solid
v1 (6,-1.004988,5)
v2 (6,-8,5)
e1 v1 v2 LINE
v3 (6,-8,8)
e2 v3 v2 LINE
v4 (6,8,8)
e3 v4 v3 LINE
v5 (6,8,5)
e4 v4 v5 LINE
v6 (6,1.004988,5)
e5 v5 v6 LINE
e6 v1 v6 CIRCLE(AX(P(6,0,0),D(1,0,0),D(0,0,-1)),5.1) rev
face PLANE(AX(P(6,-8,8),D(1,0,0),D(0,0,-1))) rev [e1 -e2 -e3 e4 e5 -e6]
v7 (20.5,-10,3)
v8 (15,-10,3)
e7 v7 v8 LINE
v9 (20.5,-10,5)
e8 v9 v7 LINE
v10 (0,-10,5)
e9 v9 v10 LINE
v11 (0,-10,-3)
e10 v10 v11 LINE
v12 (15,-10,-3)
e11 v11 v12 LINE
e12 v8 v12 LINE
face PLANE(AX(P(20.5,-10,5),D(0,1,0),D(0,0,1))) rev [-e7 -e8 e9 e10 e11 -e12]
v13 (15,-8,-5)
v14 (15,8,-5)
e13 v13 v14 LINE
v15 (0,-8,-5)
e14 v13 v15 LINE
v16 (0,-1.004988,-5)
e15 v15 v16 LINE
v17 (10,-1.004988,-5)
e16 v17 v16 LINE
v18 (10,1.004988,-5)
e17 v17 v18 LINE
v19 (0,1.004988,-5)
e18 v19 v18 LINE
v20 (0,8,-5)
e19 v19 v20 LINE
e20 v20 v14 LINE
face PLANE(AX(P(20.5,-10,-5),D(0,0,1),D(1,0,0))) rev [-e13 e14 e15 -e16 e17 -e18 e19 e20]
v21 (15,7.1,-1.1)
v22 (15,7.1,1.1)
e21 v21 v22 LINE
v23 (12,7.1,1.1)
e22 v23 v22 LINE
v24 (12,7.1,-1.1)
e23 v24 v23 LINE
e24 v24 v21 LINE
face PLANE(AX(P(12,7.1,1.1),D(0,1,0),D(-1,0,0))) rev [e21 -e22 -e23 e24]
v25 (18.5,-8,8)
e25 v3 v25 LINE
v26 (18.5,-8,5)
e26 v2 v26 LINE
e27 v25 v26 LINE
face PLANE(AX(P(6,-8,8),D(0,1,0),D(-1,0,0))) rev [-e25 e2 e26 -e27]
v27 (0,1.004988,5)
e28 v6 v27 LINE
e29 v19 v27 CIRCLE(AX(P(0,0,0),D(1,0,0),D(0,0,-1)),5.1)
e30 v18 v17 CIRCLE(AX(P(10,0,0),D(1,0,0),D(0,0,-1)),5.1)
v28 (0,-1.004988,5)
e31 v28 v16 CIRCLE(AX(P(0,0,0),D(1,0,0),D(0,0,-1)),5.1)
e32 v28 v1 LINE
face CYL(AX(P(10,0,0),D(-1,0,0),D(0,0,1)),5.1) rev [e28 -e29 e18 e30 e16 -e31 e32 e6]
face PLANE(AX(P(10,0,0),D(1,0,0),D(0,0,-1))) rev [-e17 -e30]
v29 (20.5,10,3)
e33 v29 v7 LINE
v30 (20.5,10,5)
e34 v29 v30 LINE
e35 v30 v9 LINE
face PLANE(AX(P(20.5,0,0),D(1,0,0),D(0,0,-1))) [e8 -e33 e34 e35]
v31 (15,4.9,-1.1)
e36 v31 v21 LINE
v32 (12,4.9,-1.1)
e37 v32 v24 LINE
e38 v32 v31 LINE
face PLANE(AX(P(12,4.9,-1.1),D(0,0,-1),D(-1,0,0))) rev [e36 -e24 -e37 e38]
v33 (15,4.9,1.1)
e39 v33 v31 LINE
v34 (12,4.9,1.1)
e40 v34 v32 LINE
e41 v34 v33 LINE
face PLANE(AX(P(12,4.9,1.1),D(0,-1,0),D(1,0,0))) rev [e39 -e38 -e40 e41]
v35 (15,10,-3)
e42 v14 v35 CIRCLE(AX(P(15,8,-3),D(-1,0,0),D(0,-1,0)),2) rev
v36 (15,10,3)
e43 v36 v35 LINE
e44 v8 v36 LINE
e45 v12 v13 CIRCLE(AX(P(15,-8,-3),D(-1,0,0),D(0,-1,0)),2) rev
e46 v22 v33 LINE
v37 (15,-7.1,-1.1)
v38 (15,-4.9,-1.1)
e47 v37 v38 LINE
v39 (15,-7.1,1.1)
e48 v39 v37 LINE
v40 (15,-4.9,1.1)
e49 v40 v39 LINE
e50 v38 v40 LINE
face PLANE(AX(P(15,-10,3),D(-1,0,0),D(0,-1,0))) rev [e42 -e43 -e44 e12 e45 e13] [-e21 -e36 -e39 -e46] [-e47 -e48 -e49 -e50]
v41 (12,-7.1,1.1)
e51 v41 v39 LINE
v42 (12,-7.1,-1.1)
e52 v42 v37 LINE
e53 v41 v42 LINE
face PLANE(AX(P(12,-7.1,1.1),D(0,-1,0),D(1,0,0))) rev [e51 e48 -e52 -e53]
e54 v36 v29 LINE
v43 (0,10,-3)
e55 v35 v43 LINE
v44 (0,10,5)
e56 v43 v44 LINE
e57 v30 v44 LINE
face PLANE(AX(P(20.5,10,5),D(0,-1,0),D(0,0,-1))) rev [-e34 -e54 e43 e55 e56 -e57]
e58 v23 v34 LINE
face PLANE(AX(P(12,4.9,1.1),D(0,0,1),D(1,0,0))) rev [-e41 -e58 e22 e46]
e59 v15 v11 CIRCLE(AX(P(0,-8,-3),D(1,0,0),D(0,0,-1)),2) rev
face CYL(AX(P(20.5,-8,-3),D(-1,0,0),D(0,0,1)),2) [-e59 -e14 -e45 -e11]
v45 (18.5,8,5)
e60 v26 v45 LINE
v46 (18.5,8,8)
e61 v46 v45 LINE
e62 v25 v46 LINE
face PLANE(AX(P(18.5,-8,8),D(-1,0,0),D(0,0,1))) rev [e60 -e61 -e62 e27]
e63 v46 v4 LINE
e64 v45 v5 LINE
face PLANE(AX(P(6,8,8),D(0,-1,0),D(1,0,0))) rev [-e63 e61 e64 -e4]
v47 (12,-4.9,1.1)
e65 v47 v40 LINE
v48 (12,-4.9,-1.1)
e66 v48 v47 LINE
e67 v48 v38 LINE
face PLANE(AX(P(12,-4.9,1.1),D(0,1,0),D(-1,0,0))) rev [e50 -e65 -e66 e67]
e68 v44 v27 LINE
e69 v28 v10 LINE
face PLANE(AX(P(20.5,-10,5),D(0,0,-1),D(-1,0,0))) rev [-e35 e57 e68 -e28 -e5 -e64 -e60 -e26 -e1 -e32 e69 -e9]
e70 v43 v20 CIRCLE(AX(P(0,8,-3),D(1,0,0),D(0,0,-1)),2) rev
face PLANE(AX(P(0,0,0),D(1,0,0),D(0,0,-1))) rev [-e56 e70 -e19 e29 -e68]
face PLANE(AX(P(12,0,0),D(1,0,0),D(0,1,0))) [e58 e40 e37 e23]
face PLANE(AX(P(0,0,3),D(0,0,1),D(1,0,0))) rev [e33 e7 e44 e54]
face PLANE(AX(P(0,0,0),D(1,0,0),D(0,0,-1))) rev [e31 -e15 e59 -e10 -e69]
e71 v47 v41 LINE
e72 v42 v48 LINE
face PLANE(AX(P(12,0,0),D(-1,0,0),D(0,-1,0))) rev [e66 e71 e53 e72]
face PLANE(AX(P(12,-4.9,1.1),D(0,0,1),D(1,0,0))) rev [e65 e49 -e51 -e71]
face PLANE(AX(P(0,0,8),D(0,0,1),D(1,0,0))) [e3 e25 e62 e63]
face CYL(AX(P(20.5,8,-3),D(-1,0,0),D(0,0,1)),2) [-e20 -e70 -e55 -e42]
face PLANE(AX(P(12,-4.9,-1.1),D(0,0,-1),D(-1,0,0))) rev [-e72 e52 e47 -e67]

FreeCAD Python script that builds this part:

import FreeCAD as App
import Part
import Sketcher
from FreeCAD import Vector


def edges_at(feature, points):
    """Names of the edges that pass closest to the given points."""
    edges = feature.Shape.Edges
    near = lambda p: min(range(len(edges)), key=lambda i: edges[i].distToShape(Part.Vertex(*p))[0])
    return sorted({f"Edge{near(p) + 1}" for p in points})

doc = App.newDocument("Part")
params = doc.addObject("Spreadsheet::Sheet", "Params")
for row, (alias, value) in enumerate([
    ("sketch1_width", "20 mm"),
    ("sketch1_height", "10 mm"),
    ("pad1_length", "20.5 mm"),
    ("sketch2_height", "16 mm"),
    ("sketch2_width", "12.5 mm"),
    ("pad2_length", "8 mm"),
    ("sketch3_diameter", "10.2 mm"),
    ("pocket1_length", "10 mm"),
    ("sketch4_height", "20 mm"),
    ("sketch4_width", "5.5 mm"),
    ("pocket2_length", "8 mm"),
    ("sketch5_width", "2.2 mm"),
    ("pocket3_length", "3 mm"),
    ("fillet_radius", "2 mm"),
], start=1):
    params.set(f"A{row}", alias)
    params.set(f"B{row}", "=" + value)
    params.setAlias(f"B{row}", alias)

body = doc.addObject("PartDesign::Body", "Body")

sketch1 = body.newObject("Sketcher::SketchObject", "Sketch")
sketch1.AttachmentSupport = (doc.getObject("YZ_Plane"), [""])
sketch1.MapMode = "FlatFace"
sketch1.addGeometry([
    Part.LineSegment(Vector(-10, 5, 0), Vector(-10, -5, 0)),
    Part.LineSegment(Vector(-10, -5, 0), Vector(10, -5, 0)),
    Part.LineSegment(Vector(10, -5, 0), Vector(10, 5, 0)),
    Part.LineSegment(Vector(10, 5, 0), Vector(-10, 5, 0)),
], False)
sketch1.addConstraint([
    Sketcher.Constraint("Coincident", 0, 2, 1, 1),
    Sketcher.Constraint("Coincident", 1, 2, 2, 1),
    Sketcher.Constraint("Coincident", 2, 2, 3, 1),
    Sketcher.Constraint("Coincident", 3, 2, 0, 1),
    Sketcher.Constraint("Vertical", 0),
    Sketcher.Constraint("Horizontal", 1),
    Sketcher.Constraint("Vertical", 2),
    Sketcher.Constraint("Horizontal", 3),
    Sketcher.Constraint("Symmetric", 0, 2, 2, 2, -1, 1),
    Sketcher.Constraint("DistanceX", 1, 1, 1, 2, 20.0),
    Sketcher.Constraint("DistanceY", 0, 2, 0, 1, 10.0),
])
sketch1.setExpression("Constraints[9]", "Params.sketch1_width")
sketch1.setExpression("Constraints[10]", "Params.sketch1_height")
pad1 = body.newObject("PartDesign::Pad", "Pad")
pad1.Profile = sketch1
pad1.setExpression("Length", "Params.pad1_length")

sketch2 = body.newObject("Sketcher::SketchObject", "Sketch001")
sketch2.AttachmentSupport = (doc.getObject("XY_Plane"), [""])
sketch2.MapMode = "FlatFace"
sketch2.addGeometry([
    Part.LineSegment(Vector(6, -8, 0), Vector(18.5, -8, 0)),
    Part.LineSegment(Vector(18.5, -8, 0), Vector(18.5, 8, 0)),
    Part.LineSegment(Vector(18.5, 8, 0), Vector(6, 8, 0)),
    Part.LineSegment(Vector(6, 8, 0), Vector(6, -8, 0)),
], False)
sketch2.addConstraint([
    Sketcher.Constraint("Coincident", 0, 2, 1, 1),
    Sketcher.Constraint("Coincident", 1, 2, 2, 1),
    Sketcher.Constraint("Coincident", 2, 2, 3, 1),
    Sketcher.Constraint("Coincident", 3, 2, 0, 1),
    Sketcher.Constraint("Horizontal", 0),
    Sketcher.Constraint("Vertical", 1),
    Sketcher.Constraint("Horizontal", 2),
    Sketcher.Constraint("Vertical", 3),
    Sketcher.Constraint("DistanceY", 1, 1, 1, 2, 16.0),
    Sketcher.Constraint("DistanceX", 0, 1, 0, 2, 12.5),
    Sketcher.Constraint("DistanceY", 0, 2, -1, 1, 8.0),
    Sketcher.Constraint("DistanceX", -1, 1, 2, 2, 6.0),
])
sketch2.setExpression("Constraints[8]", "Params.sketch2_height")
sketch2.setExpression("Constraints[9]", "Params.sketch2_width")
pad2 = body.newObject("PartDesign::Pad", "Pad001")
pad2.Profile = sketch2
pad2.setExpression("Length", "Params.pad2_length")

sketch3 = body.newObject("Sketcher::SketchObject", "Sketch002")
sketch3.AttachmentSupport = (doc.getObject("YZ_Plane"), [""])
sketch3.MapMode = "FlatFace"
sketch3.addGeometry(Part.Circle(Vector(0, 0, 0), Vector(0, 0, 1), 5.1), False)
sketch3.addConstraint([
    Sketcher.Constraint("Coincident", 0, 3, -1, 1),
    Sketcher.Constraint("Diameter", 0, 10.2),
])
sketch3.setExpression("Constraints[1]", "Params.sketch3_diameter")
pocket1 = body.newObject("PartDesign::Pocket", "Pocket")
pocket1.Profile = sketch3
pocket1.setExpression("Length", "Params.pocket1_length")
pocket1.Reversed = True

sketch4 = body.newObject("Sketcher::SketchObject", "Sketch003")
sketch4.AttachmentSupport = (doc.getObject("XY_Plane"), [""])
sketch4.MapMode = "FlatFace"
sketch4.AttachmentOffset = App.Placement(Vector(0, 0, -5), App.Rotation())
sketch4.addGeometry([
    Part.LineSegment(Vector(15, -10, 0), Vector(15, 10, 0)),
    Part.LineSegment(Vector(15, 10, 0), Vector(20.5, 10, 0)),
    Part.LineSegment(Vector(20.5, 10, 0), Vector(20.5, -10, 0)),
    Part.LineSegment(Vector(20.5, -10, 0), Vector(15, -10, 0)),
], False)
sketch4.addConstraint([
    Sketcher.Constraint("Coincident", 0, 2, 1, 1),
    Sketcher.Constraint("Coincident", 1, 2, 2, 1),
    Sketcher.Constraint("Coincident", 2, 2, 3, 1),
    Sketcher.Constraint("Coincident", 3, 2, 0, 1),
    Sketcher.Constraint("Vertical", 0),
    Sketcher.Constraint("Horizontal", 1),
    Sketcher.Constraint("Vertical", 2),
    Sketcher.Constraint("Horizontal", 3),
    Sketcher.Constraint("DistanceY", 0, 1, 0, 2, 20.0),
    Sketcher.Constraint("DistanceX", 1, 1, 1, 2, 5.5),
    Sketcher.Constraint("DistanceX", -1, 1, 0, 2, 15.0),
    Sketcher.Constraint("DistanceY", -1, 1, 0, 2, 10.0),
])
sketch4.setExpression("Constraints[8]", "Params.sketch4_height")
sketch4.setExpression("Constraints[9]", "Params.sketch4_width")
pocket2 = body.newObject("PartDesign::Pocket", "Pocket001")
pocket2.Profile = sketch4
pocket2.setExpression("Length", "Params.pocket2_length")
pocket2.Reversed = True

sketch5 = body.newObject("Sketcher::SketchObject", "Sketch004")
sketch5.AttachmentSupport = (doc.getObject("YZ_Plane"), [""])
sketch5.MapMode = "FlatFace"
sketch5.AttachmentOffset = App.Placement(Vector(0, 0, 15), App.Rotation())
sketch5.addGeometry([
    Part.LineSegment(Vector(4.9, 1.1, 0), Vector(4.9, -1.1, 0)),
    Part.LineSegment(Vector(4.9, -1.1, 0), Vector(7.1, -1.1, 0)),
    Part.LineSegment(Vector(7.1, -1.1, 0), Vector(7.1, 1.1, 0)),
    Part.LineSegment(Vector(7.1, 1.1, 0), Vector(4.9, 1.1, 0)),
    Part.LineSegment(Vector(-7.1, 1.1, 0), Vector(-7.1, -1.1, 0)),
    Part.LineSegment(Vector(-7.1, -1.1, 0), Vector(-4.9, -1.1, 0)),
    Part.LineSegment(Vector(-4.9, -1.1, 0), Vector(-4.9, 1.1, 0)),
    Part.LineSegment(Vector(-4.9, 1.1, 0), Vector(-7.1, 1.1, 0)),
], False)
sketch5.addConstraint([
    Sketcher.Constraint("Coincident", 0, 2, 1, 1),
    Sketcher.Constraint("Coincident", 1, 2, 2, 1),
    Sketcher.Constraint("Coincident", 2, 2, 3, 1),
    Sketcher.Constraint("Coincident", 3, 2, 0, 1),
    Sketcher.Constraint("Coincident", 4, 2, 5, 1),
    Sketcher.Constraint("Coincident", 5, 2, 6, 1),
    Sketcher.Constraint("Coincident", 6, 2, 7, 1),
    Sketcher.Constraint("Coincident", 7, 2, 4, 1),
    Sketcher.Constraint("Vertical", 0),
    Sketcher.Constraint("Horizontal", 1),
    Sketcher.Constraint("Vertical", 2),
    Sketcher.Constraint("Horizontal", 3),
    Sketcher.Constraint("Vertical", 4),
    Sketcher.Constraint("Horizontal", 5),
    Sketcher.Constraint("Vertical", 6),
    Sketcher.Constraint("Horizontal", 7),
    Sketcher.Constraint("Symmetric", 2, 2, 4, 2, -1, 1),
    Sketcher.Constraint("Symmetric", 0, 2, 6, 2, -1, 1),
    Sketcher.Constraint("Horizontal", 1, 2, 4, 2),
    Sketcher.Constraint("Equal", 7, 0),
    Sketcher.Constraint("DistanceX", 1, 1, 1, 2, 2.2),
    Sketcher.Constraint("DistanceX", 4, 2, 0, 2, 12.0),
])
sketch5.setExpression("Constraints[20]", "Params.sketch5_width")
pocket3 = body.newObject("PartDesign::Pocket", "Pocket002")
pocket3.Profile = sketch5
pocket3.setExpression("Length", "Params.pocket3_length")
doc.recompute()

fillet = body.newObject("PartDesign::Fillet", "Fillet")
fillet.Base = (pocket3, edges_at(pocket3, [(7.5, -10, -5), (7.5, 10, -5)]))
fillet.setExpression("Radius", "Params.fillet_radius")

doc.recompute()
